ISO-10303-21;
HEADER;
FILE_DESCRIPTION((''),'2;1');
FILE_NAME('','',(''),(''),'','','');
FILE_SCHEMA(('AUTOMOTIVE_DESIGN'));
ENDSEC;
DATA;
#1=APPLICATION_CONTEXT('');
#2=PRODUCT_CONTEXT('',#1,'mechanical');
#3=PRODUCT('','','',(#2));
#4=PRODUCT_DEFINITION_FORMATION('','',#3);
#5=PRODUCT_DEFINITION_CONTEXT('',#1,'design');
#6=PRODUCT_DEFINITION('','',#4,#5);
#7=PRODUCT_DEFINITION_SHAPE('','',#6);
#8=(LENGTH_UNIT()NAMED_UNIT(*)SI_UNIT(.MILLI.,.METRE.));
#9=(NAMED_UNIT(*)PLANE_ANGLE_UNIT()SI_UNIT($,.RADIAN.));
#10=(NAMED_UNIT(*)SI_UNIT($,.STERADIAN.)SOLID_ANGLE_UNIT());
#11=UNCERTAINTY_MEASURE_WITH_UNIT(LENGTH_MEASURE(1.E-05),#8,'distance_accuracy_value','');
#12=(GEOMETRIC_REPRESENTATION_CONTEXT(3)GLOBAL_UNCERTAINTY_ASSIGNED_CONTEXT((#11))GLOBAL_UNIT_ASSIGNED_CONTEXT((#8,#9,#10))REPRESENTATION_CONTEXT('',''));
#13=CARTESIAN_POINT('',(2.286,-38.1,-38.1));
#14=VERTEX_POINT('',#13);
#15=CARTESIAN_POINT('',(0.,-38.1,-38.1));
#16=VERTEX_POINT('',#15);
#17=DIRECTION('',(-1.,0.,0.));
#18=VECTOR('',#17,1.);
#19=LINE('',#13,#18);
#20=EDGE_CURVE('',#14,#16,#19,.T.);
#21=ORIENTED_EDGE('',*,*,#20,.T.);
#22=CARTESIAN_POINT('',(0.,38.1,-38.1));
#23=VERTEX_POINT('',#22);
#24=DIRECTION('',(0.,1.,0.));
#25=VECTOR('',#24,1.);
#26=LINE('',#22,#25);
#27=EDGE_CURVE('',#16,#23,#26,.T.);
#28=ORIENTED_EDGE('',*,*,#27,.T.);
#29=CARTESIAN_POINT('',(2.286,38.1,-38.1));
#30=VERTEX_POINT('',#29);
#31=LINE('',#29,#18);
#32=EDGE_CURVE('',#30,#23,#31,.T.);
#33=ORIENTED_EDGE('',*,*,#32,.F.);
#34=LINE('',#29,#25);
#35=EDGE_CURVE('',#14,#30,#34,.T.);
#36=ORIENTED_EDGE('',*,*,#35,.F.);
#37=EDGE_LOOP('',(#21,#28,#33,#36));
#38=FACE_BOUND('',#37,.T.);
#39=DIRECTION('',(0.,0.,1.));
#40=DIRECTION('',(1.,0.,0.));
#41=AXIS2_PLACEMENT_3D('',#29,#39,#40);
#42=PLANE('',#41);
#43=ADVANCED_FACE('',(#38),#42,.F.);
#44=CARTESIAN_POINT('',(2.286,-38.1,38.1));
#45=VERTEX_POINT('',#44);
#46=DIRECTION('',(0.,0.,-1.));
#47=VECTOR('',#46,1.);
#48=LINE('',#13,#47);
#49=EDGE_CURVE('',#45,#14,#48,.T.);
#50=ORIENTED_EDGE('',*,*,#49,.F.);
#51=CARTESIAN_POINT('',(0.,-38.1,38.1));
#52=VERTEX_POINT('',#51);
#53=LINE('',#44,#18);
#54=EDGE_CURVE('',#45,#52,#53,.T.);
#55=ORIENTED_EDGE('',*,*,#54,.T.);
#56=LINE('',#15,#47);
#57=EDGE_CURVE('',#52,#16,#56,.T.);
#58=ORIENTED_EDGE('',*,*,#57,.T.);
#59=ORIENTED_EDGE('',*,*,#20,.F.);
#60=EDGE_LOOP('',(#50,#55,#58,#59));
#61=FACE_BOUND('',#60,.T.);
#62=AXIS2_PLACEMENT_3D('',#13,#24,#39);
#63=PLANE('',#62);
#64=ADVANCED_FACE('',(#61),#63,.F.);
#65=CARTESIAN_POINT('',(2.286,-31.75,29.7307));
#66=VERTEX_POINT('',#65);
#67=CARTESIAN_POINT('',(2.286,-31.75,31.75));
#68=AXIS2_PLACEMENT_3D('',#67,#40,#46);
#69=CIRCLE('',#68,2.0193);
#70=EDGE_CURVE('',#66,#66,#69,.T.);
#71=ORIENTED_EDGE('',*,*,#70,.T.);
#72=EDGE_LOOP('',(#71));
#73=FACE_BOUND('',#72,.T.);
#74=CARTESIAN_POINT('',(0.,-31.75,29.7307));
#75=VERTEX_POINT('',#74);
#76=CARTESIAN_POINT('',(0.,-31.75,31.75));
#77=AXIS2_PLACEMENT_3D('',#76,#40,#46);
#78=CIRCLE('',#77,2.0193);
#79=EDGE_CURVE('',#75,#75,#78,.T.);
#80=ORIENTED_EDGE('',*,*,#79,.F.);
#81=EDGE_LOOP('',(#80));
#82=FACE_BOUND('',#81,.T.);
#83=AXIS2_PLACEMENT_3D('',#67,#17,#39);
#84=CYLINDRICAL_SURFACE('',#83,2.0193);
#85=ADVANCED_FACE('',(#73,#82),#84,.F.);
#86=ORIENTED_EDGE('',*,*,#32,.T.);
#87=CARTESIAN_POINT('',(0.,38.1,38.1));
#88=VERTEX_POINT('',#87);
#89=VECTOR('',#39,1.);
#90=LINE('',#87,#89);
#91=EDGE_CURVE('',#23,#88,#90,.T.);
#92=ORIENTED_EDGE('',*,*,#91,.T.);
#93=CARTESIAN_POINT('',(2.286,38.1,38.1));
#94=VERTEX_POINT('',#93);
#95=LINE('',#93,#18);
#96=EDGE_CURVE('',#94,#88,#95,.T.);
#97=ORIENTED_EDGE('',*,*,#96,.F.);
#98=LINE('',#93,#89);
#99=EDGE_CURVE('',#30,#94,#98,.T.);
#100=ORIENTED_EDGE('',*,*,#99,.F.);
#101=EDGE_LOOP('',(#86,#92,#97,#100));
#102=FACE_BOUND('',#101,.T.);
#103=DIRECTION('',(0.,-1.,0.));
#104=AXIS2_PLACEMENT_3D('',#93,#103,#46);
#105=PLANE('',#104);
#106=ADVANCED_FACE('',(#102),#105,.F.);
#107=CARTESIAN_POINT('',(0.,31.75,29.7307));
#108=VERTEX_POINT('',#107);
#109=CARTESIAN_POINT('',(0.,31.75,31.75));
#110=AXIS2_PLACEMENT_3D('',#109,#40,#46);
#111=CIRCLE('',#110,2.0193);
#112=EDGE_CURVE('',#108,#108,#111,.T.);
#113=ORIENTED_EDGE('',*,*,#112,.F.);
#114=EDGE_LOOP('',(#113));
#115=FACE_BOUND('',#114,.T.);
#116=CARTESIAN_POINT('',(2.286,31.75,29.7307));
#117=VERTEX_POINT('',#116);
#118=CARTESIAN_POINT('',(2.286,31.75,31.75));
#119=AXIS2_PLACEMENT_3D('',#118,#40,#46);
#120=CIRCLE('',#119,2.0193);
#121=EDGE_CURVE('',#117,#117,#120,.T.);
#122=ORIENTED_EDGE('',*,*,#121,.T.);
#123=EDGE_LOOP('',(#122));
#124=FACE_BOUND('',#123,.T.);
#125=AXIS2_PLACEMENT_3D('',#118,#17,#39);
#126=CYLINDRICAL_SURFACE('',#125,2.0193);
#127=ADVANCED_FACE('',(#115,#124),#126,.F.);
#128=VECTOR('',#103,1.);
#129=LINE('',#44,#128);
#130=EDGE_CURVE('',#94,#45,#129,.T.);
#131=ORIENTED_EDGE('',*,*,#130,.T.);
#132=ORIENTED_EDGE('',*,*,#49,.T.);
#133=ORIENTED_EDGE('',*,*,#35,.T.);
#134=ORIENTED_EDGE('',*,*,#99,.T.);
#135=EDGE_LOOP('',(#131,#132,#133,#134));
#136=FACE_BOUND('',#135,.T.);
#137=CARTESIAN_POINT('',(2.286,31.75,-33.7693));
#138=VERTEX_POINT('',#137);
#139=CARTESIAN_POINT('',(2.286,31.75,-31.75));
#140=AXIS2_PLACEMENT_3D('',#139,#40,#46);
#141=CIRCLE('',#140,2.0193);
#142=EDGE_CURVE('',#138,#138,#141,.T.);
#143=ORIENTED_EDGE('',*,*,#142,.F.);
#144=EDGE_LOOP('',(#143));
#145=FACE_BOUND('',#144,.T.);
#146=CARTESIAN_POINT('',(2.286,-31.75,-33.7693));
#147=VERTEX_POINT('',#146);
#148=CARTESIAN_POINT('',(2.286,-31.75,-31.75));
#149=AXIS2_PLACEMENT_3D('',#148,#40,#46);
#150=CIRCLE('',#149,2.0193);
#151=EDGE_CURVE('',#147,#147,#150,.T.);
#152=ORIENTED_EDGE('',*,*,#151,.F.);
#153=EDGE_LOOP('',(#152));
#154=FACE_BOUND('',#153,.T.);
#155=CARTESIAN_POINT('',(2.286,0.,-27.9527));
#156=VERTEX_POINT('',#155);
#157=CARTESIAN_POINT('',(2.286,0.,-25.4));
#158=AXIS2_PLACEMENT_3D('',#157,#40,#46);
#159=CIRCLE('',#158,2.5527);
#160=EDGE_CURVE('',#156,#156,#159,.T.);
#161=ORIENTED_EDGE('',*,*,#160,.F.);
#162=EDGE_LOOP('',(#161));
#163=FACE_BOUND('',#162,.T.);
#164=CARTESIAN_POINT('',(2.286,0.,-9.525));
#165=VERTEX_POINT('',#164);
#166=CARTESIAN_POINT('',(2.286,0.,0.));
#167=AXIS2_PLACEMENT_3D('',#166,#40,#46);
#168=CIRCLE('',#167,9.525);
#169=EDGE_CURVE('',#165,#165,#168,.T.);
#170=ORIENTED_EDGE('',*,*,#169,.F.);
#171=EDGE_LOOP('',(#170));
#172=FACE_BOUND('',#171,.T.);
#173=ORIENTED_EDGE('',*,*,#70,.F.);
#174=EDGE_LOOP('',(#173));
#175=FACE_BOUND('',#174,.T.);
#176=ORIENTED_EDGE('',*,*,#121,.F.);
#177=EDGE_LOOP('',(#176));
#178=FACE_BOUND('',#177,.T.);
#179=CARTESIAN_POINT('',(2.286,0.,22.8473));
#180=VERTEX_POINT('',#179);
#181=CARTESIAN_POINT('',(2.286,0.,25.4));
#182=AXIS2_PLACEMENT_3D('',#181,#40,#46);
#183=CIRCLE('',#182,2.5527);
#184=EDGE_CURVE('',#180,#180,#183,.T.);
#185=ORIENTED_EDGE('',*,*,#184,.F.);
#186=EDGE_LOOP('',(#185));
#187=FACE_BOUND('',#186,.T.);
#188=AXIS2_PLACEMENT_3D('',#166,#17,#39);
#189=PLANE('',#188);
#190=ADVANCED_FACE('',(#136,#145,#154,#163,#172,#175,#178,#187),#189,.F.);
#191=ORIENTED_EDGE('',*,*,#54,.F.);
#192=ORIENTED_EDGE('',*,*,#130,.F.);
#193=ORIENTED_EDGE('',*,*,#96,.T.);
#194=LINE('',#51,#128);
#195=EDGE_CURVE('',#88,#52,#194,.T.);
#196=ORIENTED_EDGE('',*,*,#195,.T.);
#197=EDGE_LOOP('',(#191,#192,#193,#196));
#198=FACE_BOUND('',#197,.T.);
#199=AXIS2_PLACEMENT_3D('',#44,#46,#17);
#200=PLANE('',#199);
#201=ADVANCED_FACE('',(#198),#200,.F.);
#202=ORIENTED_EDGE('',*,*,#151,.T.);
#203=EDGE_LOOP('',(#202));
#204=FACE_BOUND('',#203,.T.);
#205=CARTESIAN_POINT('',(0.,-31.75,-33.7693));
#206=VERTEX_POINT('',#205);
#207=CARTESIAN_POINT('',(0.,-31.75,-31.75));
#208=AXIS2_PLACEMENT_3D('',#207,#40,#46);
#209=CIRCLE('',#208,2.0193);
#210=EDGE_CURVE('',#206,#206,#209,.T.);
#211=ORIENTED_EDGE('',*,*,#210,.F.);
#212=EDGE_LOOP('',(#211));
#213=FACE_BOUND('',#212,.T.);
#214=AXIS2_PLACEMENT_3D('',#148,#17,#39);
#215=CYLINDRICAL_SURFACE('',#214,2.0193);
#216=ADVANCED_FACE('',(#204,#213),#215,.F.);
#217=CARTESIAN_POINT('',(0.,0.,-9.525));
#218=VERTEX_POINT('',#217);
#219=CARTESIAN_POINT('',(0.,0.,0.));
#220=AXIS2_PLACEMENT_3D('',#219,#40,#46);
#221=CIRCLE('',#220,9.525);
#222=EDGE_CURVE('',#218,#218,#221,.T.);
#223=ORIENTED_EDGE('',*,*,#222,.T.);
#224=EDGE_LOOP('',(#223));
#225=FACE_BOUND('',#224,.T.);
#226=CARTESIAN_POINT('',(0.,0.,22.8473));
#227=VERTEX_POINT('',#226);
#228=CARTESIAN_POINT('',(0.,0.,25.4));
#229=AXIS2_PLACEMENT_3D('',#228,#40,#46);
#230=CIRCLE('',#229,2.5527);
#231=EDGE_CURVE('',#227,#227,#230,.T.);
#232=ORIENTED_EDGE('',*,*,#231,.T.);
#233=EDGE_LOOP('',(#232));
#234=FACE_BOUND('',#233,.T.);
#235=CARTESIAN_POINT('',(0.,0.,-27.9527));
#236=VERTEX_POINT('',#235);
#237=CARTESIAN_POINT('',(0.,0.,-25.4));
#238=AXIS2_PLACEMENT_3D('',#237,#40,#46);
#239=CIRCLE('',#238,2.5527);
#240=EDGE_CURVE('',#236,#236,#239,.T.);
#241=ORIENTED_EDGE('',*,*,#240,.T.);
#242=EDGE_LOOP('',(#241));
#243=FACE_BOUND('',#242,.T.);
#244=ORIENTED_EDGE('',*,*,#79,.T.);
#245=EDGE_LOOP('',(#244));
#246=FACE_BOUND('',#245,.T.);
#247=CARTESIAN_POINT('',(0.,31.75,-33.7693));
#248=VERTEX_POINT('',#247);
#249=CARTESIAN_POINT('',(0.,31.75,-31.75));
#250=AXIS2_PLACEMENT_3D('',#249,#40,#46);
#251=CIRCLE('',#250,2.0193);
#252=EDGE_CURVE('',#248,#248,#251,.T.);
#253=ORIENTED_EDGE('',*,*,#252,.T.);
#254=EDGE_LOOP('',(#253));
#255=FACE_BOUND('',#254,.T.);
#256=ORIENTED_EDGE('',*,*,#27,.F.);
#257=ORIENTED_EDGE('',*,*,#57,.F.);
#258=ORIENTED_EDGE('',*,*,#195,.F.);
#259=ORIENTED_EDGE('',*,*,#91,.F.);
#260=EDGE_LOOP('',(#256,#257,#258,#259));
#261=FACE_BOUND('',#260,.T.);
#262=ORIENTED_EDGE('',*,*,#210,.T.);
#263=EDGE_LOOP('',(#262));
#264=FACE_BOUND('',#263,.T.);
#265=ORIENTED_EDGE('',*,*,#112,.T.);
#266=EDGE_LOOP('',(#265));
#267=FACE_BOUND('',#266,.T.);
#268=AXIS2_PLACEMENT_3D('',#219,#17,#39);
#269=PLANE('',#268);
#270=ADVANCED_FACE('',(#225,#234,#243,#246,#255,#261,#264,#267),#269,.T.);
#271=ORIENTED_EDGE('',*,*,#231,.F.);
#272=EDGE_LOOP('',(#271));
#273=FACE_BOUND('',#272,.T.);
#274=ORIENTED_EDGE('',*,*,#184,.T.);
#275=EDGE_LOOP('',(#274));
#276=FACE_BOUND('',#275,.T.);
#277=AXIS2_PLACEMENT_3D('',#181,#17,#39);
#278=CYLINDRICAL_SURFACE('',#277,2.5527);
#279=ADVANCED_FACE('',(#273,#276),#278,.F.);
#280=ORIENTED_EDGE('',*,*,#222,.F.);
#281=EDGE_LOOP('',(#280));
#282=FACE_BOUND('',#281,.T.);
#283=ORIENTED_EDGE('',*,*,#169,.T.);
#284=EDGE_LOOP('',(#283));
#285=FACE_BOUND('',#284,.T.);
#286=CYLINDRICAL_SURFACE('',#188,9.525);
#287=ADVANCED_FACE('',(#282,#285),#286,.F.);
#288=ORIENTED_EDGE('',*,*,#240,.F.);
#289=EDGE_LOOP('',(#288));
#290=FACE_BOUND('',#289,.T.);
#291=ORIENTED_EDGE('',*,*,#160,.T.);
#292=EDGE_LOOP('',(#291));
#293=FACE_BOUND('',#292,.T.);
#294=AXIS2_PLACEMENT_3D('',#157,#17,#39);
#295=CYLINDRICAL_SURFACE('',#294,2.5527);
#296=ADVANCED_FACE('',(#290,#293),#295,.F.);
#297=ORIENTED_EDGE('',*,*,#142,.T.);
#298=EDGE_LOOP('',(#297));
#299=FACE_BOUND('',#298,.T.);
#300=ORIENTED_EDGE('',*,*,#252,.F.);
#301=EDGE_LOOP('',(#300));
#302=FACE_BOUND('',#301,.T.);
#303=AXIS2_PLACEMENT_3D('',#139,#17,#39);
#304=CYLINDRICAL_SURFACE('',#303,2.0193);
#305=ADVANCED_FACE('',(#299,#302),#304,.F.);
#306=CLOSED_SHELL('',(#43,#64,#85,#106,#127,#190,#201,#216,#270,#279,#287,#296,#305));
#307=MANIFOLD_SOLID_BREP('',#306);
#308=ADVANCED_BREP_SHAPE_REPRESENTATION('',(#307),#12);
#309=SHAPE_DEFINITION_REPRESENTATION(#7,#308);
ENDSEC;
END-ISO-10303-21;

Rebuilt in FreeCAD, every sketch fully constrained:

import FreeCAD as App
import Part
import Sketcher
Q = App.Units.Quantity

doc = App.newDocument("Part")
body = doc.addObject("PartDesign::Body", "Body")

# Sketch on YZ plane
sketch1 = body.newObject("Sketcher::SketchObject", "Sketch")
sketch1.AttachmentSupport = (doc.getObject("YZ_Plane"), [""])
sketch1.MapMode = "FlatFace"
sketch1.addGeometry(Part.LineSegment(App.Vector(38.1, 38.1, 0), App.Vector(-38.1, 38.1, 0)), False)
sketch1.addGeometry(Part.LineSegment(App.Vector(-38.1, 38.1, 0), App.Vector(-38.1, -38.1, 0)), False)
sketch1.addGeometry(Part.LineSegment(App.Vector(-38.1, -38.1, 0), App.Vector(38.1, -38.1, 0)), False)
sketch1.addGeometry(Part.LineSegment(App.Vector(38.1, -38.1, 0), App.Vector(38.1, 38.1, 0)), False)
sketch1.addGeometry(Part.Circle(App.Vector(-31.75, 31.75, 0), App.Vector(0, 0, 1), 2.0193), False)
sketch1.addGeometry(Part.Circle(App.Vector(-31.75, -31.75, 0), App.Vector(0, 0, 1), 2.0193), False)
sketch1.addGeometry(Part.Circle(App.Vector(0, 25.4, 0), App.Vector(0, 0, 1), 2.5527), False)
sketch1.addGeometry(Part.Circle(App.Vector(31.75, 31.75, 0), App.Vector(0, 0, 1), 2.0193), False)
sketch1.addGeometry(Part.Circle(App.Vector(0, 0, 0), App.Vector(0, 0, 1), 9.525), False)
sketch1.addGeometry(Part.Circle(App.Vector(0, -25.4, 0), App.Vector(0, 0, 1), 2.5527), False)
sketch1.addGeometry(Part.Circle(App.Vector(31.75, -31.75, 0), App.Vector(0, 0, 1), 2.0193), False)
sketch1.addConstraint(Sketcher.Constraint("Coincident", 0, 2, 1, 1))
sketch1.addConstraint(Sketcher.Constraint("Coincident", 1, 2, 2, 1))
sketch1.addConstraint(Sketcher.Constraint("Coincident", 2, 2, 3, 1))
sketch1.addConstraint(Sketcher.Constraint("Coincident", 3, 2, 0, 1))
sketch1.addConstraint(Sketcher.Constraint("Horizontal", 0))
sketch1.addConstraint(Sketcher.Constraint("Vertical", 1))
sketch1.addConstraint(Sketcher.Constraint("Horizontal", 2))
sketch1.addConstraint(Sketcher.Constraint("Vertical", 3))
sketch1.addConstraint(Sketcher.Constraint("Coincident", 8, 3, -1, 1))
sketch1.addConstraint(Sketcher.Constraint("Equal", 4, 5))
sketch1.addConstraint(Sketcher.Constraint("Equal", 5, 7))
sketch1.addConstraint(Sketcher.Constraint("Equal", 6, 9))
sketch1.addConstraint(Sketcher.Constraint("Equal", 7, 10))
sketch1.addConstraint(Sketcher.Constraint("Symmetric", 5, 3, 7, 3, -1, 1))
sketch1.addConstraint(Sketcher.Constraint("Symmetric", 6, 3, 9, 3, -1, 1))
sketch1.addConstraint(Sketcher.Constraint("Symmetric", 4, 3, 10, 3, -1, 1))
sketch1.addConstraint(Sketcher.Constraint("Symmetric", 0, 2, 2, 2, -1, 1))
sketch1.addConstraint(Sketcher.Constraint("Symmetric", 4, 3, 7, 3, -2))
sketch1.addConstraint(Sketcher.Constraint("PointOnObject", 6, 3, -2))
sketch1.addConstraint(Sketcher.Constraint("Equal", 2, 1))
sketch1.addConstraint(Sketcher.Constraint("Diameter", 8, Q("0.75 in")))
sketch1.addConstraint(Sketcher.Constraint("DistanceX", 0, 2, 0, 1, Q("3 in")))
sketch1.addConstraint(Sketcher.Constraint("Diameter", 4, Q("0.159 in")))
sketch1.addConstraint(Sketcher.Constraint("Diameter", 6, Q("0.201 in")))
sketch1.addConstraint(Sketcher.Constraint("DistanceY", -1, 1, 6, 3, Q("1 in")))
sketch1.addConstraint(Sketcher.Constraint("DistanceY", 5, 3, 4, 3, Q("2.5 in")))
sketch1.addConstraint(Sketcher.Constraint("DistanceX", 4, 3, 7, 3, Q("2.5 in")))
pad1 = body.newObject("PartDesign::Pad", "Pad")
pad1.Profile = sketch1
pad1.Length = Q("0.09 in")

doc.recompute()
